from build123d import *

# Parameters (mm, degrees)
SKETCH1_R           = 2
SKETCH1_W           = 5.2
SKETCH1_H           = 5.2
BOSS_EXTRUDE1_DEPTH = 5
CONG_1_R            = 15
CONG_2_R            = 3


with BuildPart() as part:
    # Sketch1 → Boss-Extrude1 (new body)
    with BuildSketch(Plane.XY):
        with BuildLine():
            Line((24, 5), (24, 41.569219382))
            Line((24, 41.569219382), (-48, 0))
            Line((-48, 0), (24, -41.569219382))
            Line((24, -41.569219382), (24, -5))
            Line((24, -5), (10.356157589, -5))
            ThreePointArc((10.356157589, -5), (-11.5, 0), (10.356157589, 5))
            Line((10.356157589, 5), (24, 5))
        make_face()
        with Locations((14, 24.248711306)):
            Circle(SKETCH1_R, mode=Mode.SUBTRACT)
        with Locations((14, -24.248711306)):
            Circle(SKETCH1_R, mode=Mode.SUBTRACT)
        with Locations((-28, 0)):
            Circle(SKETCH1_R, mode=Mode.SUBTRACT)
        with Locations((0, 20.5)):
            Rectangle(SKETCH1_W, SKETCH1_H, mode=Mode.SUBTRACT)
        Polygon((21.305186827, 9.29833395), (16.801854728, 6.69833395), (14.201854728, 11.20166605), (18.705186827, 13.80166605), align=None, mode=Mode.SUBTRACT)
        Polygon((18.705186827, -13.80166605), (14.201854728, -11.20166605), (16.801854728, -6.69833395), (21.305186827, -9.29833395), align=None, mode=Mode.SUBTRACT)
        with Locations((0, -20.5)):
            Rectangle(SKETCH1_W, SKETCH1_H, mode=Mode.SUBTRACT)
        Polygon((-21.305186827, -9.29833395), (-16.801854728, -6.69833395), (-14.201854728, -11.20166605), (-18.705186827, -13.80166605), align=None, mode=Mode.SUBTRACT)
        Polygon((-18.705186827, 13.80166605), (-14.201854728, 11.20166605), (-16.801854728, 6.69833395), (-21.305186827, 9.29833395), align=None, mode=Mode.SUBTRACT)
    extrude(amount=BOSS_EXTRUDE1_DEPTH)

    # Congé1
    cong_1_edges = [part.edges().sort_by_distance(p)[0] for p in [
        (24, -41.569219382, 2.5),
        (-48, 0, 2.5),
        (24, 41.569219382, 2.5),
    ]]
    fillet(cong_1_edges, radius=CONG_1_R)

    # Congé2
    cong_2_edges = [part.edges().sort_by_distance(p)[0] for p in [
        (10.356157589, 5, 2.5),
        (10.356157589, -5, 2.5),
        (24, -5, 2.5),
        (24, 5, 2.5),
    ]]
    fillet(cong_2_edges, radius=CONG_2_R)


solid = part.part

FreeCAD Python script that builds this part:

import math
import FreeCAD as App
import Part
import Sketcher
Q = App.Units.Quantity


def edges_at(feature, points):
    """Names of the edges that pass closest to the given points."""
    edges = feature.Shape.Edges
    near = lambda p: min(range(len(edges)), key=lambda i: edges[i].distToShape(Part.Vertex(*p))[0])
    return sorted({f"Edge{near(p) + 1}" for p in points})


def add_polygon(sketch, points):
    """Adds a closed chain of lines whose ends are joined by coincident constraints."""
    first, n = sketch.GeometryCount, len(points)
    for a, b in zip(points, points[1:] + points[:1]):
        sketch.addGeometry(Part.LineSegment(App.Vector(*a, 0), App.Vector(*b, 0)), False)
    for i in range(n):
        sketch.addConstraint(Sketcher.Constraint("Coincident", first + i, 2, first + (i + 1) % n, 1))

doc = App.newDocument("Part")
body = doc.addObject("PartDesign::Body", "Body")

# Sketch on XY plane
sketch1 = body.newObject("Sketcher::SketchObject", "Sketch")
sketch1.AttachmentSupport = (doc.getObject("XY_Plane"), [""])
sketch1.MapMode = "FlatFace"
sketch1.addGeometry(Part.LineSegment(App.Vector(24, 5, 0), App.Vector(24, 41.6, 0)), False)  # 0
sketch1.addGeometry(Part.LineSegment(App.Vector(24, 41.6, 0), App.Vector(-48, 0, 0)), False)  # 1
sketch1.addGeometry(Part.LineSegment(App.Vector(-48, 0, 0), App.Vector(24, -41.6, 0)), False)  # 2
sketch1.addGeometry(Part.LineSegment(App.Vector(24, -41.6, 0), App.Vector(24, -5, 0)), False)  # 3
sketch1.addGeometry(Part.LineSegment(App.Vector(24, -5, 0), App.Vector(10.4, -5, 0)), False)  # 4
sketch1.addGeometry(Part.ArcOfCircle(Part.Circle(App.Vector(0, 0, 0), App.Vector(0, 0, 1), 11.5), math.radians(26), math.radians(334)), False)  # 5
sketch1.addGeometry(Part.LineSegment(App.Vector(10.4, 5, 0), App.Vector(24, 5, 0)), False)  # 6
add_polygon(sketch1, [(-18.7, -13.8), (-21.3, -9.3), (-16.8, -6.7), (-14.2, -11.2)])  # lines 7-10
add_polygon(sketch1, [(2.6, -23.1), (-2.6, -23.1), (-2.6, -17.9), (2.6, -17.9)])  # lines 11-14
sketch1.addGeometry(Part.Circle(App.Vector(14, -24.2, 0), App.Vector(0, 0, 1), 2), False)  # 15
add_polygon(sketch1, [(21.3, -9.3), (18.7, -13.8), (14.2, -11.2), (16.8, -6.7)])  # lines 16-19
sketch1.addGeometry(Part.Circle(App.Vector(-28, 0, 0), App.Vector(0, 0, 1), 2), False)  # 20
add_polygon(sketch1, [(-21.3, 9.3), (-18.7, 13.8), (-14.2, 11.2), (-16.8, 6.7)])  # lines 21-24
add_polygon(sketch1, [(18.7, 13.8), (21.3, 9.3), (16.8, 6.7), (14.2, 11.2)])  # lines 25-28
add_polygon(sketch1, [(2.6, 17.9), (-2.6, 17.9), (-2.6, 23.1), (2.6, 23.1)])  # lines 29-32
sketch1.addGeometry(Part.Circle(App.Vector(14, 24.2, 0), App.Vector(0, 0, 1), 2), False)  # 33
sketch1.addConstraint(Sketcher.Constraint("Coincident", 0, 2, 1, 1))
sketch1.addConstraint(Sketcher.Constraint("Coincident", 1, 2, 2, 1))
sketch1.addConstraint(Sketcher.Constraint("Coincident", 2, 2, 3, 1))
sketch1.addConstraint(Sketcher.Constraint("Coincident", 3, 2, 4, 1))
sketch1.addConstraint(Sketcher.Constraint("Coincident", 4, 2, 5, 2))
sketch1.addConstraint(Sketcher.Constraint("Coincident", 5, 1, 6, 1))
sketch1.addConstraint(Sketcher.Constraint("Coincident", 6, 2, 0, 1))
sketch1.addConstraint(Sketcher.Constraint("Vertical", 0))
sketch1.addConstraint(Sketcher.Constraint("Vertical", 3))
sketch1.addConstraint(Sketcher.Constraint("Horizontal", 4))
sketch1.addConstraint(Sketcher.Constraint("Horizontal", 6))
sketch1.addConstraint(Sketcher.Constraint("Horizontal", 11))
sketch1.addConstraint(Sketcher.Constraint("Vertical", 12))
sketch1.addConstraint(Sketcher.Constraint("Horizontal", 13))
sketch1.addConstraint(Sketcher.Constraint("Vertical", 14))
sketch1.addConstraint(Sketcher.Constraint("Horizontal", 29))
sketch1.addConstraint(Sketcher.Constraint("Vertical", 30))
sketch1.addConstraint(Sketcher.Constraint("Horizontal", 31))
sketch1.addConstraint(Sketcher.Constraint("Vertical", 32))
sketch1.addConstraint(Sketcher.Constraint("Coincident", 5, 3, -1, 1))
sketch1.addConstraint(Sketcher.Constraint("Equal", 15, 20))
sketch1.addConstraint(Sketcher.Constraint("Equal", 20, 33))
sketch1.addConstraint(Sketcher.Constraint("Symmetric", 16, 2, 21, 2, -1, 1))
sketch1.addConstraint(Sketcher.Constraint("Symmetric", 17, 2, 22, 2, -1, 1))
sketch1.addConstraint(Sketcher.Constraint("Symmetric", 18, 2, 23, 2, -1, 1))
sketch1.addConstraint(Sketcher.Constraint("Symmetric", 19, 2, 24, 2, -1, 1))
sketch1.addConstraint(Sketcher.Constraint("Symmetric", 7, 2, 25, 2, -1, 1))
sketch1.addConstraint(Sketcher.Constraint("Symmetric", 8, 2, 26, 2, -1, 1))
sketch1.addConstraint(Sketcher.Constraint("Symmetric", 9, 2, 27, 2, -1, 1))
sketch1.addConstraint(Sketcher.Constraint("Symmetric", 10, 2, 28, 2, -1, 1))
sketch1.addConstraint(Sketcher.Constraint("Symmetric", 13, 2, 29, 2, -1, 1))
sketch1.addConstraint(Sketcher.Constraint("Symmetric", 11, 2, 31, 2, -1, 1))
sketch1.addConstraint(Sketcher.Constraint("Symmetric", 10, 2, 16, 2, -2))
sketch1.addConstraint(Sketcher.Constraint("Symmetric", 9, 2, 17, 2, -2))
sketch1.addConstraint(Sketcher.Constraint("Symmetric", 8, 2, 18, 2, -2))
sketch1.addConstraint(Sketcher.Constraint("Symmetric", 7, 2, 19, 2, -2))
sketch1.addConstraint(Sketcher.Constraint("Symmetric", 15, 3, 33, 3, -1))
sketch1.addConstraint(Sketcher.Constraint("Symmetric", 0, 2, 2, 2, -1))
sketch1.addConstraint(Sketcher.Constraint("PointOnObject", 20, 3, -1))
sketch1.addConstraint(Sketcher.Constraint("PointOnObject", 1, 2, -1))
sketch1.addConstraint(Sketcher.Constraint("Perpendicular", 1, 7))
sketch1.addConstraint(Sketcher.Constraint("Perpendicular", 7, 8))
sketch1.addConstraint(Sketcher.Constraint("Perpendicular", 8, 9))
sketch1.addConstraint(Sketcher.Constraint("Perpendicular", 9, 10))
sketch1.addConstraint(Sketcher.Constraint("Vertical", 4, 2, 5, 1))
sketch1.addConstraint(Sketcher.Constraint("Vertical", 12, 2, 29, 2))
sketch1.addConstraint(Sketcher.Constraint("Equal", 31, 12))
sketch1.addConstraint(Sketcher.Constraint("Equal", 7, 8))
sketch1.addConstraint(Sketcher.Constraint("Diameter", 15, Q("4 mm")))
sketch1.addConstraint(Sketcher.Constraint("Radius", 5, Q("11.5 mm")))
sketch1.addConstraint(Sketcher.Constraint("Angle", 1, Q("-150 deg")))
sketch1.addConstraint(Sketcher.Constraint("DistanceX", 11, 2, 11, 1, Q("5.2 mm")))
sketch1.addConstraint(Sketcher.Constraint("DistanceX", -1, 1, 15, 3, Q("14 mm")))
sketch1.addConstraint(Sketcher.Constraint("DistanceX", 20, 3, -1, 1, Q("28 mm")))
sketch1.addConstraint(Sketcher.Constraint("DistanceX", -1, 1, 0, 2, Q("24 mm")))
sketch1.addConstraint(Sketcher.Constraint("DistanceX", 1, 2, -1, 1, Q("48 mm")))
sketch1.addConstraint(Sketcher.Constraint("DistanceY", 3, 2, -1, 1, Q("5 mm")))
sketch1.addConstraint(Sketcher.Constraint("Distance", 7, Q("5.2 mm")))
sketch1.addConstraint(Sketcher.Constraint("DistanceY", 11, 2, -1, 1, Q("23.1 mm")))
sketch1.addConstraint(Sketcher.Constraint("DistanceY", 8, 2, 21, 2, Q("20.5 mm")))
sketch1.addConstraint(Sketcher.Constraint("DistanceY", 15, 3, -1, 1, Q("24.248711 mm")))
sketch1.addConstraint(Sketcher.Constraint("DistanceX", 4, 2, 16, 2, Q("8.349029 mm")))
pad1 = body.newObject("PartDesign::Pad", "Pad")
pad1.Profile = sketch1
pad1.Length = 5
doc.recompute()

fillet = body.newObject("PartDesign::Fillet", "Fillet")
fillet.Base = (pad1, edges_at(pad1, [(24, -41.569, 2.5), (-48, 0, 2.5), (24, 41.569, 2.5)]))
fillet.Radius = 15
doc.recompute()

fillet2 = body.newObject("PartDesign::Fillet", "Fillet001")
fillet2.Base = (fillet, edges_at(fillet, [
    (10.356, 5, 2.5),
    (10.356, -5, 2.5),
    (24, -5, 2.5),
    (24, 5, 2.5),
]))
fillet2.Radius = 3

doc.recompute()
